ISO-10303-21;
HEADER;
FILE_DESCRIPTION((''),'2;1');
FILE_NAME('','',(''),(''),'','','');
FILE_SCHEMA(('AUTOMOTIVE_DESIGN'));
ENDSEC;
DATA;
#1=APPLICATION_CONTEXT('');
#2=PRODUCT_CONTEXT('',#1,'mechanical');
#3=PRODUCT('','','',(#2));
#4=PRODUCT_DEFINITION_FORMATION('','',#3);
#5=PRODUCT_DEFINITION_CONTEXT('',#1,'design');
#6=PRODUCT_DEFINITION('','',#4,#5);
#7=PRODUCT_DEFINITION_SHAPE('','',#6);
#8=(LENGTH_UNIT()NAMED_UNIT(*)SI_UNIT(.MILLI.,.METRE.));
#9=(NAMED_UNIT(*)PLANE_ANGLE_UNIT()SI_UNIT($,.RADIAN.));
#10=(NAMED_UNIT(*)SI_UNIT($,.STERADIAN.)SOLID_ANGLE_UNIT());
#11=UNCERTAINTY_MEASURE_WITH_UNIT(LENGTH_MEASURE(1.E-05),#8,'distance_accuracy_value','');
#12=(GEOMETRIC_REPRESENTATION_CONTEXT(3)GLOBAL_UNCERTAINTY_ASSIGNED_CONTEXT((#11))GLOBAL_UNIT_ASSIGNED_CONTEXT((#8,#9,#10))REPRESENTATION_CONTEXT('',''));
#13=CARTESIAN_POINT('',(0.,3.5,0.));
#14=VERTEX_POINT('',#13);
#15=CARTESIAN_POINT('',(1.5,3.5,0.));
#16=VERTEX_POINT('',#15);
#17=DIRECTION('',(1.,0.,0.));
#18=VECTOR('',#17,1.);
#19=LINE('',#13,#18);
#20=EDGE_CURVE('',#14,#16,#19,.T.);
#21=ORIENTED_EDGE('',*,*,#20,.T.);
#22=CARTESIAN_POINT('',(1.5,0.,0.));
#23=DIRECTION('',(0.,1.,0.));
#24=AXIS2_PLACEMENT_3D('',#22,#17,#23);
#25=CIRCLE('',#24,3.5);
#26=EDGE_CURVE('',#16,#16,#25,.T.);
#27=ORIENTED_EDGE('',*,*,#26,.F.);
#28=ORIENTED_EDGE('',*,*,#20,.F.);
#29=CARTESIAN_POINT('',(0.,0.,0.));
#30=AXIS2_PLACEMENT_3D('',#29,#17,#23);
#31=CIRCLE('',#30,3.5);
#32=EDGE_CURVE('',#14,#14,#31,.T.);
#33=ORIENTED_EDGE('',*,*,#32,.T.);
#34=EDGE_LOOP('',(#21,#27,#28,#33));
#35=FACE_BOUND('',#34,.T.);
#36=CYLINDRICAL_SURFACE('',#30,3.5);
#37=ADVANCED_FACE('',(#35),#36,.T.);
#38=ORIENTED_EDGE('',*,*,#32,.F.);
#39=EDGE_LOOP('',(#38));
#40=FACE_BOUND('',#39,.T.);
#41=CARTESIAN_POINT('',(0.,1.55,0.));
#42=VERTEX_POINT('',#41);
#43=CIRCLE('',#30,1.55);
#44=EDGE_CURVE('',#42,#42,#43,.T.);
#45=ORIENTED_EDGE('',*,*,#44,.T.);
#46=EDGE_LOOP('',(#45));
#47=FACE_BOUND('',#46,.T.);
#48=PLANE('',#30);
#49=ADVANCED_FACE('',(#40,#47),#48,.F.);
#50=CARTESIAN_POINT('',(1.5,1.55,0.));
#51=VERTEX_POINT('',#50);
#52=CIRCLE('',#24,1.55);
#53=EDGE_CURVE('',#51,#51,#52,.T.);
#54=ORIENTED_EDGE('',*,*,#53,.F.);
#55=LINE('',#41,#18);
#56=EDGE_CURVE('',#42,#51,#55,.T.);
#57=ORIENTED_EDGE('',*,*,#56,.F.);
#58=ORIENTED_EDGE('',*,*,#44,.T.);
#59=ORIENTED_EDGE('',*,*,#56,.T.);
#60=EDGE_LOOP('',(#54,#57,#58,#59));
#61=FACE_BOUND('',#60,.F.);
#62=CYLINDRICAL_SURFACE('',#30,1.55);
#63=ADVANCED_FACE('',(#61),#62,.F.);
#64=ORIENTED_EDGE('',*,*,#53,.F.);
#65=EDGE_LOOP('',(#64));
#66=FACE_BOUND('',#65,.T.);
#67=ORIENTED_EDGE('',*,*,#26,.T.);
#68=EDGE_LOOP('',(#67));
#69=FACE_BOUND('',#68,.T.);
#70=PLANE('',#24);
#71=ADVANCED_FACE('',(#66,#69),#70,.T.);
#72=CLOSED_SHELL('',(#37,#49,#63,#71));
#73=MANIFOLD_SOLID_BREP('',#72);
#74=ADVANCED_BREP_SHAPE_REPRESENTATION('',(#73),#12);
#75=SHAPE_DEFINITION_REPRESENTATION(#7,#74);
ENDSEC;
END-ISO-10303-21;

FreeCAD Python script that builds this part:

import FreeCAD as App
import Part
import Sketcher

doc = App.newDocument("Part")
body = doc.addObject("PartDesign::Body", "Body")

# Sketch on XY plane
sketch1 = doc.addObject("Sketcher::SketchObject", "Sketch")
body.addObject(sketch1)
sketch1.AttachmentSupport = (doc.XY_Plane, [""])
sketch1.MapMode = "FlatFace"
sketch1.addGeometry(Part.LineSegment(App.Vector(0, 3.5, 0), App.Vector(0, 1.6, 0)), False)
sketch1.addGeometry(Part.LineSegment(App.Vector(0, 1.6, 0), App.Vector(1.5, 1.6, 0)), False)
sketch1.addGeometry(Part.LineSegment(App.Vector(1.5, 1.6, 0), App.Vector(1.5, 3.5, 0)), False)
sketch1.addGeometry(Part.LineSegment(App.Vector(1.5, 3.5, 0), App.Vector(0, 3.5, 0)), False)
sketch1.addConstraint(Sketcher.Constraint("Coincident", 0, 2, 1, 1))
sketch1.addConstraint(Sketcher.Constraint("Coincident", 1, 2, 2, 1))
sketch1.addConstraint(Sketcher.Constraint("Coincident", 2, 2, 3, 1))
sketch1.addConstraint(Sketcher.Constraint("Coincident", 3, 2, 0, 1))
sketch1.addConstraint(Sketcher.Constraint("Vertical", 0))
sketch1.addConstraint(Sketcher.Constraint("Horizontal", 1))
sketch1.addConstraint(Sketcher.Constraint("Vertical", 2))
sketch1.addConstraint(Sketcher.Constraint("Horizontal", 3))
sketch1.addConstraint(Sketcher.Constraint("PointOnObject", 0, 2, -2))
sketch1.addConstraint(Sketcher.Constraint("DistanceX", 1, 1, 1, 2, 1.5))
sketch1.addConstraint(Sketcher.Constraint("DistanceY", 0, 2, 0, 1, 1.95))
sketch1.addConstraint(Sketcher.Constraint("DistanceY", -1, 1, 2, 2, 3.5))
revolution = doc.addObject("PartDesign::Revolution", "Revolution")
body.addObject(revolution)
revolution.Profile = sketch1
revolution.ReferenceAxis = (sketch1, ["H_Axis"])
revolution.Angle = 360

doc.recompute()
